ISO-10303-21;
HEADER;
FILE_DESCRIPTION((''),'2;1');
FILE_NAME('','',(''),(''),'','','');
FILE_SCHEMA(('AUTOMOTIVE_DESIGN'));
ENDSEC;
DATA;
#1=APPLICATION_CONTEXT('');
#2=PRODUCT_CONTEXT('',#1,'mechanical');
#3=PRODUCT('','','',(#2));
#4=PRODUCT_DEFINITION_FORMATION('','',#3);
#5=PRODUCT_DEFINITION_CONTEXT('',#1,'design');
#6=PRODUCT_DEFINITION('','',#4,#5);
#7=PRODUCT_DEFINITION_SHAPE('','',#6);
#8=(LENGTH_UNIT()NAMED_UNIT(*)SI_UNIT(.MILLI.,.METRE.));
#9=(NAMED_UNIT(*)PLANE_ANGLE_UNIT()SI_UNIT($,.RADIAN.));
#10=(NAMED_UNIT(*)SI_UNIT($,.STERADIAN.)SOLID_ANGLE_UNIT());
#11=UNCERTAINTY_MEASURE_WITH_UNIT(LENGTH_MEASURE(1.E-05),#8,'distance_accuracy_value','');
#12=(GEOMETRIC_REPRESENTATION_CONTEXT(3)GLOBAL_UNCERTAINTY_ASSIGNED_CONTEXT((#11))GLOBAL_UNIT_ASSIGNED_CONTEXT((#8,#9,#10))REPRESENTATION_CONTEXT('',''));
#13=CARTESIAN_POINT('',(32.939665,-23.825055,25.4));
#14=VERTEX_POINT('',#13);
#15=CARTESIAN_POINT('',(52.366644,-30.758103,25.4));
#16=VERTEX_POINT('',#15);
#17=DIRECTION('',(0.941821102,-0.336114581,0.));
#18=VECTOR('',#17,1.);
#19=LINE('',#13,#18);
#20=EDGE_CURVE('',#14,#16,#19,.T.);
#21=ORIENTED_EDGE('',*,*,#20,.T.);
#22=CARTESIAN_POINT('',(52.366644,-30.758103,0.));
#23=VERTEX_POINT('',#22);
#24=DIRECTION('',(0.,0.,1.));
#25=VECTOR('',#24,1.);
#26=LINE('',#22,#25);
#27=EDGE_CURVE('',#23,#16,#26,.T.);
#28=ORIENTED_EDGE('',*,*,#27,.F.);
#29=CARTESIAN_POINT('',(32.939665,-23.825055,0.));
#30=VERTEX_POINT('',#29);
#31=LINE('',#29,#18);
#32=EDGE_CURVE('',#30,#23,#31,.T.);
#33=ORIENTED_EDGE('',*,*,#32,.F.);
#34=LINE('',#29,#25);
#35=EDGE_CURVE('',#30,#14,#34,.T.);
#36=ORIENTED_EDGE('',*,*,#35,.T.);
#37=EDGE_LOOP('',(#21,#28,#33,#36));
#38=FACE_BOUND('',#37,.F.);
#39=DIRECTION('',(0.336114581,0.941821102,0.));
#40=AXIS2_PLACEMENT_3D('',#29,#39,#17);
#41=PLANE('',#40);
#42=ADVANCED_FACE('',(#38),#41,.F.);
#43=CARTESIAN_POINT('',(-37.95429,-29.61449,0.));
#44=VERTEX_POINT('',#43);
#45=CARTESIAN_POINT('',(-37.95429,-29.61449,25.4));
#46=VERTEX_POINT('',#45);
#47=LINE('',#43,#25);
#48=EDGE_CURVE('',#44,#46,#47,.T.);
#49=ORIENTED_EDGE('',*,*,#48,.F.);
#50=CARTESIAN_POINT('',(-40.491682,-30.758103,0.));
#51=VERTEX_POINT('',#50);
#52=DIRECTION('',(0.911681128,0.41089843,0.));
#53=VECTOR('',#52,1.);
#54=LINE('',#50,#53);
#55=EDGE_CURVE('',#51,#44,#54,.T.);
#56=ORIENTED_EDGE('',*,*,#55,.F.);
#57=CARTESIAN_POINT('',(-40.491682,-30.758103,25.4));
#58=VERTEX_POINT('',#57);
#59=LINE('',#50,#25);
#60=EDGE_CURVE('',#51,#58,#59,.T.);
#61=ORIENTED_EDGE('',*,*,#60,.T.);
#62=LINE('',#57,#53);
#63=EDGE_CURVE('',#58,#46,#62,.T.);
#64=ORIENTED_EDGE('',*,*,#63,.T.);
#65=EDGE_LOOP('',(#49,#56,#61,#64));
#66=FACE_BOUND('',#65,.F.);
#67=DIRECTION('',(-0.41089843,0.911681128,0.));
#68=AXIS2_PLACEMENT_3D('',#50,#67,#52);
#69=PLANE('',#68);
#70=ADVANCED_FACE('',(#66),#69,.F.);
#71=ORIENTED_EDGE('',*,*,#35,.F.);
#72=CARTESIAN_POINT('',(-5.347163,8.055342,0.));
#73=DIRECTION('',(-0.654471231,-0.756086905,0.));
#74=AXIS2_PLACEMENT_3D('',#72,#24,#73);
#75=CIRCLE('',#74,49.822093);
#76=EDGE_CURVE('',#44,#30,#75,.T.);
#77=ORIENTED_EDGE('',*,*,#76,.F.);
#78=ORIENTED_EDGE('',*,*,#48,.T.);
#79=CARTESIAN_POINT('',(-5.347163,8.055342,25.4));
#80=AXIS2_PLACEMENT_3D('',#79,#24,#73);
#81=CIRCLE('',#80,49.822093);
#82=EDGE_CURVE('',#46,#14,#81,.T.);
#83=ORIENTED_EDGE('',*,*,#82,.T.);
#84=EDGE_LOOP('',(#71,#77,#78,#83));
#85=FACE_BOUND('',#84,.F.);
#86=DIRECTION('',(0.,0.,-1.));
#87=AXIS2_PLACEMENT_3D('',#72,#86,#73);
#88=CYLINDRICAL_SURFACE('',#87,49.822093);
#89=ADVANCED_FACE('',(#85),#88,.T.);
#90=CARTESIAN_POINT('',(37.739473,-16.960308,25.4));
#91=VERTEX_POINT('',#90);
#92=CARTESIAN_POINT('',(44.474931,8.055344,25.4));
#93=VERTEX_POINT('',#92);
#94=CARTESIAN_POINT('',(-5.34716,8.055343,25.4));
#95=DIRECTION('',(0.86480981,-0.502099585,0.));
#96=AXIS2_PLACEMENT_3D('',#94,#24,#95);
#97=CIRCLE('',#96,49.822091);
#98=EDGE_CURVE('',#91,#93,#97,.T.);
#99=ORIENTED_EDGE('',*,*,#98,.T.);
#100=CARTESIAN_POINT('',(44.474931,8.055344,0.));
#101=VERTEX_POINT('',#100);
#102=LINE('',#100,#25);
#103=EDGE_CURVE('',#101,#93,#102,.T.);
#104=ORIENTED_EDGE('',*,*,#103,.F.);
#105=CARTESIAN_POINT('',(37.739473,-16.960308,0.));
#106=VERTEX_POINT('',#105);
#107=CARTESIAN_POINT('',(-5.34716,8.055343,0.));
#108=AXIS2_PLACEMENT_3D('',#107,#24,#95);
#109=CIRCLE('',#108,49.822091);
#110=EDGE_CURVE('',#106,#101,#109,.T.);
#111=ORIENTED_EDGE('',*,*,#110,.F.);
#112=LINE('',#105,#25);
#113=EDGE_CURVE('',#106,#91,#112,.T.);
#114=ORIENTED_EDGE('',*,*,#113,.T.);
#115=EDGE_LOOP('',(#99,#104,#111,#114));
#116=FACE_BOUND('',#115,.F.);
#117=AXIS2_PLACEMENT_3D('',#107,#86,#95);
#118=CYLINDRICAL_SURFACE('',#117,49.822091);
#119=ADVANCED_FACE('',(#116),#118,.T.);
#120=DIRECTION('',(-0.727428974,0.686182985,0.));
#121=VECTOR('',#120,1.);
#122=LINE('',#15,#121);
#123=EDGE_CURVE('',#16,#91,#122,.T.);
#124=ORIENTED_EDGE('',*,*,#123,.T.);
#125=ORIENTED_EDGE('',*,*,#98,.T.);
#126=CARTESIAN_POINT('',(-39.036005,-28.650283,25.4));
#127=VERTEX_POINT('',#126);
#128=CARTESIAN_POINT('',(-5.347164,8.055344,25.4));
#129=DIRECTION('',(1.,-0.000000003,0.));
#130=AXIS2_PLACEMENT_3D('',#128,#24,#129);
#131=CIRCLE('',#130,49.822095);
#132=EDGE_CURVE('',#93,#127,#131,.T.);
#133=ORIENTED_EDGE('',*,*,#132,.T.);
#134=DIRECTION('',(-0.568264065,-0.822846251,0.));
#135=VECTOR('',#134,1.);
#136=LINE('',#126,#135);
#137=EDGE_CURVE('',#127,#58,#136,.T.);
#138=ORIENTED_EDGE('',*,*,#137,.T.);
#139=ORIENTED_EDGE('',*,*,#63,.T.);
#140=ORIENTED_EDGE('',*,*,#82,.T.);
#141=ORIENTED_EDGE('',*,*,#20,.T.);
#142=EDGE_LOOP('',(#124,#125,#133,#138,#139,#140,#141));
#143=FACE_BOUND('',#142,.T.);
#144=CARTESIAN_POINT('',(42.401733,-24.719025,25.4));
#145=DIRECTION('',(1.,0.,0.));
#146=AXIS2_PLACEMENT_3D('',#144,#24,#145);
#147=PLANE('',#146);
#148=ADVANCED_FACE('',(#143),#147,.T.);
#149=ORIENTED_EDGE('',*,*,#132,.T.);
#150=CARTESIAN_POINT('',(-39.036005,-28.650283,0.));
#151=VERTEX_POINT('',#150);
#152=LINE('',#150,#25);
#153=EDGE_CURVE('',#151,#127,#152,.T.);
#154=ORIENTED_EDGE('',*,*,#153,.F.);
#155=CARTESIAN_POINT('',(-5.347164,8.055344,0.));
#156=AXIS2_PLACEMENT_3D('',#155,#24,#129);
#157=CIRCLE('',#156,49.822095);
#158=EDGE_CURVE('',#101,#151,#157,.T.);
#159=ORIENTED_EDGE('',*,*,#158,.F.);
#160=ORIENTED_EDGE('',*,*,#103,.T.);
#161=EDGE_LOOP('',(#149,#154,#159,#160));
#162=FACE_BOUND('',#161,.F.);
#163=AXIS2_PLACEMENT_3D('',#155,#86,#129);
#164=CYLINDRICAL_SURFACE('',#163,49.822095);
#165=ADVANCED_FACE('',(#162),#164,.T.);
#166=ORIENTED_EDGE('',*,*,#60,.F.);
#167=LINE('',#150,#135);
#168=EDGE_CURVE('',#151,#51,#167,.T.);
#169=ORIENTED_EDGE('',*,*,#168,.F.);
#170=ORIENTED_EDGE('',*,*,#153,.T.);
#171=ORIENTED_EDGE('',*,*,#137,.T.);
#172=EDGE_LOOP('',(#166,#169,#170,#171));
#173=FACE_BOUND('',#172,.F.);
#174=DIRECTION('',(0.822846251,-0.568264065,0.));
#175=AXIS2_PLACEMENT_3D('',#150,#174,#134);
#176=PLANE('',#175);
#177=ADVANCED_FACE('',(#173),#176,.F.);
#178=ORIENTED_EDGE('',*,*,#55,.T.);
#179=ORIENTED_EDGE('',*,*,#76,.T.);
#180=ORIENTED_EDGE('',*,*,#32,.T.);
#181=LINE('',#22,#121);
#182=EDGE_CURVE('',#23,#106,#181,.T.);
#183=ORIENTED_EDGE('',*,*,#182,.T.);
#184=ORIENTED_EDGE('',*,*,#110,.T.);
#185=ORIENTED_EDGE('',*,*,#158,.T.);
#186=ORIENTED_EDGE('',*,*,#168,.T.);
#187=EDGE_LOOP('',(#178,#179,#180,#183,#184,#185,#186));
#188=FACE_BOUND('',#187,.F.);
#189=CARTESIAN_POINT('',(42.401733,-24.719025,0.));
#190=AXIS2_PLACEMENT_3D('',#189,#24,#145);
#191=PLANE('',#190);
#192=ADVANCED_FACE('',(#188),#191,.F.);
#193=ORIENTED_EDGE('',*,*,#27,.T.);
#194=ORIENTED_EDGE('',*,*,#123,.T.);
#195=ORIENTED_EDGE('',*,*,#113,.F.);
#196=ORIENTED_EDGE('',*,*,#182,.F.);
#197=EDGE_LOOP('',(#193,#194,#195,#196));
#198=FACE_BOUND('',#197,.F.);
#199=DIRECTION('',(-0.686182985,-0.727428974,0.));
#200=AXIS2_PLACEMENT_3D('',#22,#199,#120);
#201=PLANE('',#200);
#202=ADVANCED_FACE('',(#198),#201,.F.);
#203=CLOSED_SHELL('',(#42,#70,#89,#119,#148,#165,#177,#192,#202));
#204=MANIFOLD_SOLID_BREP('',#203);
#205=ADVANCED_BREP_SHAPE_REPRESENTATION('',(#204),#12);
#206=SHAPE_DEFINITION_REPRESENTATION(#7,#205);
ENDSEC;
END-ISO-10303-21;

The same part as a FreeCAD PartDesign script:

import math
import FreeCAD as App
import Part
import Sketcher
from FreeCAD import Vector
Q = App.Units.Quantity

doc = App.newDocument("Part")
body = doc.addObject("PartDesign::Body", "Body")

sketch1 = doc.addObject("Sketcher::SketchObject", "Sketch")
body.addObject(sketch1)
sketch1.AttachmentSupport = (doc.XY_Plane, [""])
sketch1.MapMode = "FlatFace"
sketch1.addGeometry([
    Part.LineSegment(Vector(52.366644, -30.758103, 0), Vector(37.739473, -16.960308, 0)),
    Part.ArcOfCircle(Part.Circle(Vector(-5.34716, 8.055343, 0), Vector(0, 0, 1), 49.822091), math.radians(-30.139005), math.radians(0.000001)),
    Part.ArcOfCircle(Part.Circle(Vector(-5.347164, 8.055344, 0), Vector(0, 0, 1), 49.822095), math.radians(0), math.radians(227.453934)),
    Part.LineSegment(Vector(-39.036005, -28.650283, 0), Vector(-40.491682, -30.758103, 0)),
    Part.LineSegment(Vector(-40.491682, -30.758103, 0), Vector(-37.95429, -29.61449, 0)),
    Part.ArcOfCircle(Part.Circle(Vector(-5.347163, 8.055342, 0), Vector(0, 0, 1), 49.822093), math.radians(-130.879568), math.radians(-39.783226)),
    Part.LineSegment(Vector(32.939665, -23.825055, 0), Vector(52.366644, -30.758103, 0)),
], False)
sketch1.addConstraint([
    Sketcher.Constraint("Coincident", 0, 2, 1, 1),
    Sketcher.Constraint("Tangent", 1, 2, 2, 1),
    Sketcher.Constraint("Coincident", 2, 2, 3, 1),
    Sketcher.Constraint("Coincident", 3, 2, 4, 1),
    Sketcher.Constraint("Coincident", 4, 2, 5, 1),
    Sketcher.Constraint("Coincident", 5, 2, 6, 1),
    Sketcher.Constraint("Coincident", 6, 2, 0, 1),
    Sketcher.Constraint("Coincident", 5, 3, 1, 3),
    Sketcher.Constraint("Equal", 2, 5),
    Sketcher.Constraint("Horizontal", 5, 3, 1, 2),
    Sketcher.Constraint("Horizontal", 3, 2, 6, 2),
    Sketcher.Constraint("Radius", 1, 49.822091),
    Sketcher.Constraint("Radius", 2, 49.822095),
    Sketcher.Constraint("Distance", 4, 2.783201),
    Sketcher.Constraint("DistanceY", 5, 2, 1, 2, 31.880399),
    Sketcher.Constraint("Distance", 0, 20.10804),
    Sketcher.Constraint("Distance", 3, 2.561621),
    Sketcher.Constraint("DistanceX", 1, 3, -1, 1, 5.34716),
    Sketcher.Constraint("DistanceY", 0, 2, -1, 1, 16.960308),
    Sketcher.Constraint("DistanceX", 3, 2, -1, 1, 40.491682),
    Sketcher.Constraint("DistanceX", 4, 2, -1, 1, 37.95429),
    Sketcher.Constraint("DistanceY", 4, 2, -1, 1, 29.61449),
])
pad1 = doc.addObject("PartDesign::Pad", "Pad")
body.addObject(pad1)
pad1.Profile = sketch1
pad1.Length = Q("1 in")

doc.recompute()
